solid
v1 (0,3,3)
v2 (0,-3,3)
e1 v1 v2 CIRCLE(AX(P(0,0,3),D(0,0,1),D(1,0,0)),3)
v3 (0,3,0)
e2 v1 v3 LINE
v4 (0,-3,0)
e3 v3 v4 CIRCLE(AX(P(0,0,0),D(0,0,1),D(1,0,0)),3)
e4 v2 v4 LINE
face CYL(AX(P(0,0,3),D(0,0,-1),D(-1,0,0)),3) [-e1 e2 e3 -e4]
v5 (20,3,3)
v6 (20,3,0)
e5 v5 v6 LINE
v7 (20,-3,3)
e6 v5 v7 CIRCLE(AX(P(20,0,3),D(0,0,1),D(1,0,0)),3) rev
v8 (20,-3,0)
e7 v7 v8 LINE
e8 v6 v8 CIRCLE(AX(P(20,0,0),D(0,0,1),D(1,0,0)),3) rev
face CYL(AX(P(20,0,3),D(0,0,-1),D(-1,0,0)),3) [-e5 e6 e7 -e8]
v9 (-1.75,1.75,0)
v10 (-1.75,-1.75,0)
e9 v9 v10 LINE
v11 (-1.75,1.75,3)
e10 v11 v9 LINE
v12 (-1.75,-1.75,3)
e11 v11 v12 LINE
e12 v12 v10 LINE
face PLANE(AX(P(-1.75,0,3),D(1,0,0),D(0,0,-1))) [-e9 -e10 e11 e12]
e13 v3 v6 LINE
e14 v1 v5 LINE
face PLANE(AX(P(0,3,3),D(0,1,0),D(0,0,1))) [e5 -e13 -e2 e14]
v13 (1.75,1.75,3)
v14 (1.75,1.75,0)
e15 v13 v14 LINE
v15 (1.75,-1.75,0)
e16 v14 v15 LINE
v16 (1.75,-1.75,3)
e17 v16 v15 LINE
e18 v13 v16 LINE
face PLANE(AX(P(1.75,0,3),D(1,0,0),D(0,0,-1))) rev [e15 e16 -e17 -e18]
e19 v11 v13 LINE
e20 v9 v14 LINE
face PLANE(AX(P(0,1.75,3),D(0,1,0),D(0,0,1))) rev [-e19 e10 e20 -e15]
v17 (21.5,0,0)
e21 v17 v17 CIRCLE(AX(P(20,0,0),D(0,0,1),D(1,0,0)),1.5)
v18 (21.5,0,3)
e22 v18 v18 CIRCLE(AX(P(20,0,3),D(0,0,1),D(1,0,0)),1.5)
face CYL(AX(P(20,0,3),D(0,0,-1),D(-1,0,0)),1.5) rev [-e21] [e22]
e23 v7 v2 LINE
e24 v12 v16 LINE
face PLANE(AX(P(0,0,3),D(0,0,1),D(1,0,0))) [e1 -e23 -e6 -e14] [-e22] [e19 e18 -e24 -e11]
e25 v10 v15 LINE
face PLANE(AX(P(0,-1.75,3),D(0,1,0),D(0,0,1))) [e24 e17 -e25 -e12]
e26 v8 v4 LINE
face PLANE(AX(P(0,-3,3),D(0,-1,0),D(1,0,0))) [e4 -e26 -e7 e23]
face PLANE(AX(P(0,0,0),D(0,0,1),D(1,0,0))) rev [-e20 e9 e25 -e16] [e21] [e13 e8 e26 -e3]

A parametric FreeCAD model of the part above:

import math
import FreeCAD as App
import Part
import Sketcher
from FreeCAD import Vector


def add_polygon(sketch, points):
    """Adds a closed chain of lines whose ends are joined by coincident constraints."""
    first, n = sketch.GeometryCount, len(points)
    for a, b in zip(points, points[1:] + points[:1]):
        sketch.addGeometry(Part.LineSegment(App.Vector(*a, 0), App.Vector(*b, 0)), False)
    for i in range(n):
        sketch.addConstraint(Sketcher.Constraint("Coincident", first + i, 2, first + (i + 1) % n, 1))

doc = App.newDocument("Part")
params = doc.addObject("Spreadsheet::Sheet", "Params")
for row, (alias, value) in enumerate([
    ("sketch1_diameter", "3 mm"),
    ("sketch1_radius", "3 mm"),
    ("sketch1_width", "20 mm"),
    ("sketch1_width2", "3.5 mm"),
    ("pad1_length", "3 mm"),
], start=1):
    params.set(f"A{row}", alias)
    params.set(f"B{row}", "=" + value)
    params.setAlias(f"B{row}", alias)

body = doc.addObject("PartDesign::Body", "Body")

# Sketch on XY plane
sketch1 = doc.addObject("Sketcher::SketchObject", "Sketch")
body.addObject(sketch1)
sketch1.AttachmentSupport = (doc.XY_Plane, [""])
sketch1.MapMode = "FlatFace"
sketch1.addGeometry(Part.LineSegment(Vector(20, 3, 0), Vector(0, 3, 0)), False)  # 0
sketch1.addGeometry(Part.ArcOfCircle(Part.Circle(Vector(0, 0, 0), Vector(0, 0, 1), 3), math.radians(90), math.radians(270)), False)  # 1
sketch1.addGeometry(Part.LineSegment(Vector(0, -3, 0), Vector(20, -3, 0)), False)  # 2
sketch1.addGeometry(Part.ArcOfCircle(Part.Circle(Vector(20, 0, 0), Vector(0, 0, 1), 3), math.radians(-90), math.radians(90)), False)  # 3
sketch1.addGeometry(Part.Circle(Vector(20, 0, 0), Vector(0, 0, 1), 1.5), False)  # 4
add_polygon(sketch1, [(-1.8, -1.8), (-1.8, 1.8), (1.8, 1.8), (1.8, -1.8)])  # lines 5-8
sketch1.addConstraint(Sketcher.Constraint("Tangent", 0, 2, 1, 1))
sketch1.addConstraint(Sketcher.Constraint("Tangent", 1, 2, 2, 1))
sketch1.addConstraint(Sketcher.Constraint("Tangent", 2, 2, 3, 1))
sketch1.addConstraint(Sketcher.Constraint("Tangent", 3, 2, 0, 1))
sketch1.addConstraint(Sketcher.Constraint("Horizontal", 0))
sketch1.addConstraint(Sketcher.Constraint("Horizontal", 2))
sketch1.addConstraint(Sketcher.Constraint("Vertical", 5))
sketch1.addConstraint(Sketcher.Constraint("Horizontal", 6))
sketch1.addConstraint(Sketcher.Constraint("Vertical", 7))
sketch1.addConstraint(Sketcher.Constraint("Horizontal", 8))
sketch1.addConstraint(Sketcher.Constraint("Coincident", 1, 3, -1, 1))
sketch1.addConstraint(Sketcher.Constraint("Coincident", 4, 3, 3, 3))
sketch1.addConstraint(Sketcher.Constraint("Symmetric", 5, 2, 7, 2, -1, 1))
sketch1.addConstraint(Sketcher.Constraint("Equal", 8, 5))
sketch1.addConstraint(Sketcher.Constraint("Diameter", 4, 3.0))
sketch1.addConstraint(Sketcher.Constraint("Radius", 1, 3.0))
sketch1.addConstraint(Sketcher.Constraint("DistanceX", 0, 2, 0, 1, 20.0))
sketch1.addConstraint(Sketcher.Constraint("DistanceX", 6, 1, 6, 2, 3.5))
sketch1.setExpression("Constraints[18]", "Params.sketch1_diameter")
sketch1.setExpression("Constraints[19]", "Params.sketch1_radius")
sketch1.setExpression("Constraints[20]", "Params.sketch1_width")
sketch1.setExpression("Constraints[21]", "Params.sketch1_width2")
pad1 = doc.addObject("PartDesign::Pad", "Pad")
body.addObject(pad1)
pad1.Profile = sketch1
pad1.setExpression("Length", "Params.pad1_length")

doc.recompute()
